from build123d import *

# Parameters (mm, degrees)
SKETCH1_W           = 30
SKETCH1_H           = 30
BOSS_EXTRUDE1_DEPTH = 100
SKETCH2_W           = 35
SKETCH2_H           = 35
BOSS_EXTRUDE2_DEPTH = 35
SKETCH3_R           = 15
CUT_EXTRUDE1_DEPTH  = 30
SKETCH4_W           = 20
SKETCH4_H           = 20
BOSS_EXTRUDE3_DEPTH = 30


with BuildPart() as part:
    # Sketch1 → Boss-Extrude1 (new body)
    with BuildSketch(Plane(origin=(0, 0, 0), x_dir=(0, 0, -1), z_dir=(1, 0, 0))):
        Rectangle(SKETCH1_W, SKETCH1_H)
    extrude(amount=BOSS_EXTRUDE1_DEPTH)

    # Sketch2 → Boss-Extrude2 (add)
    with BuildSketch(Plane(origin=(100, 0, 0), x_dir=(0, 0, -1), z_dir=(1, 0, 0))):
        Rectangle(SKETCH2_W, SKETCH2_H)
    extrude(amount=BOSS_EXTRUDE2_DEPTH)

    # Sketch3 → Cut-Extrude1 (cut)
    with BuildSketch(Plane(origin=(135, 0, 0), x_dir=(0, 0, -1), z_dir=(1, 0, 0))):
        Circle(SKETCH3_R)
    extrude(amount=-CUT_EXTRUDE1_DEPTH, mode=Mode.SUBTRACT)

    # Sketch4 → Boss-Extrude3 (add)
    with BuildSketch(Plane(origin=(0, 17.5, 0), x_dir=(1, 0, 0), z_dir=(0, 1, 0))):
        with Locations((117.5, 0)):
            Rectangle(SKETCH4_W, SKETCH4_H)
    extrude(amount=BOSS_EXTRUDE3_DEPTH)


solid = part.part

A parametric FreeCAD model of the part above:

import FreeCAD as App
import Part
import Sketcher

V = App.Vector
Q = App.Units.Quantity

doc = App.newDocument("Part")
body = doc.addObject("PartDesign::Body", "Body")

# Sketch on YZ plane
sketch1 = body.newObject("Sketcher::SketchObject", "Sketch")
sketch1.AttachmentSupport = (doc.getObject("YZ_Plane"), [""])
sketch1.MapMode = "FlatFace"
sketch1.addGeometry([
    Part.LineSegment(V(15, 15, 0), V(-15, 15, 0)),
    Part.LineSegment(V(-15, 15, 0), V(-15, -15, 0)),
    Part.LineSegment(V(-15, -15, 0), V(15, -15, 0)),
    Part.LineSegment(V(15, -15, 0), V(15, 15, 0)),
], False)
sketch1.addConstraint([
    Sketcher.Constraint("Coincident", 0, 2, 1, 1),
    Sketcher.Constraint("Coincident", 1, 2, 2, 1),
    Sketcher.Constraint("Coincident", 2, 2, 3, 1),
    Sketcher.Constraint("Coincident", 3, 2, 0, 1),
    Sketcher.Constraint("Horizontal", 0),
    Sketcher.Constraint("Vertical", 1),
    Sketcher.Constraint("Horizontal", 2),
    Sketcher.Constraint("Vertical", 3),
    Sketcher.Constraint("Symmetric", 0, 2, 2, 2, -1, 1),
    Sketcher.Constraint("Equal", 2, 1),
    Sketcher.Constraint("DistanceX", 0, 2, 0, 1, Q("30 mm")),
])
pad1 = body.newObject("PartDesign::Pad", "Pad")
pad1.Profile = sketch1
pad1.Length = 100

# Sketch on YZ plane
sketch2 = body.newObject("Sketcher::SketchObject", "Sketch001")
sketch2.AttachmentSupport = (doc.getObject("YZ_Plane"), [""])
sketch2.MapMode = "FlatFace"
sketch2.AttachmentOffset = App.Placement(V(0, 0, 100), App.Rotation())
sketch2.addGeometry([
    Part.LineSegment(V(17.5, 17.5, 0), V(-17.5, 17.5, 0)),
    Part.LineSegment(V(-17.5, 17.5, 0), V(-17.5, -17.5, 0)),
    Part.LineSegment(V(-17.5, -17.5, 0), V(17.5, -17.5, 0)),
    Part.LineSegment(V(17.5, -17.5, 0), V(17.5, 17.5, 0)),
], False)
sketch2.addConstraint([
    Sketcher.Constraint("Coincident", 0, 2, 1, 1),
    Sketcher.Constraint("Coincident", 1, 2, 2, 1),
    Sketcher.Constraint("Coincident", 2, 2, 3, 1),
    Sketcher.Constraint("Coincident", 3, 2, 0, 1),
    Sketcher.Constraint("Horizontal", 0),
    Sketcher.Constraint("Vertical", 1),
    Sketcher.Constraint("Horizontal", 2),
    Sketcher.Constraint("Vertical", 3),
    Sketcher.Constraint("Symmetric", 0, 2, 2, 2, -1, 1),
    Sketcher.Constraint("Equal", 2, 1),
    Sketcher.Constraint("DistanceX", 0, 2, 0, 1, Q("35 mm")),
])
pad2 = body.newObject("PartDesign::Pad", "Pad001")
pad2.Profile = sketch2
pad2.Length = 35

# Sketch on YZ plane
sketch3 = body.newObject("Sketcher::SketchObject", "Sketch002")
sketch3.AttachmentSupport = (doc.getObject("YZ_Plane"), [""])
sketch3.MapMode = "FlatFace"
sketch3.AttachmentOffset = App.Placement(V(0, 0, 135), App.Rotation())
sketch3.addGeometry(Part.Circle(V(0, 0, 0), V(0, 0, 1), 15), False)
sketch3.addConstraint([
    Sketcher.Constraint("Coincident", 0, 3, -1, 1),
    Sketcher.Constraint("Diameter", 0, Q("30 mm")),
])
pocket1 = body.newObject("PartDesign::Pocket", "Pocket")
pocket1.Profile = sketch3
pocket1.Length = 30

# Sketch on XZ plane
sketch4 = body.newObject("Sketcher::SketchObject", "Sketch003")
sketch4.AttachmentSupport = (doc.getObject("XZ_Plane"), [""])
sketch4.MapMode = "FlatFace"
sketch4.AttachmentOffset = App.Placement(V(0, 0, -17.5), App.Rotation())
sketch4.addGeometry([
    Part.LineSegment(V(107.5, -10, 0), V(107.5, 10, 0)),
    Part.LineSegment(V(107.5, 10, 0), V(127.5, 10, 0)),
    Part.LineSegment(V(127.5, 10, 0), V(127.5, -10, 0)),
    Part.LineSegment(V(127.5, -10, 0), V(107.5, -10, 0)),
], False)
sketch4.addConstraint([
    Sketcher.Constraint("Coincident", 0, 2, 1, 1),
    Sketcher.Constraint("Coincident", 1, 2, 2, 1),
    Sketcher.Constraint("Coincident", 2, 2, 3, 1),
    Sketcher.Constraint("Coincident", 3, 2, 0, 1),
    Sketcher.Constraint("Vertical", 0),
    Sketcher.Constraint("Horizontal", 1),
    Sketcher.Constraint("Vertical", 2),
    Sketcher.Constraint("Horizontal", 3),
    Sketcher.Constraint("Equal", 3, 0),
    Sketcher.Constraint("DistanceX", 1, 1, 1, 2, Q("20 mm")),
    Sketcher.Constraint("DistanceY", -1, 1, 0, 2, Q("10 mm")),
    Sketcher.Constraint("DistanceX", -1, 1, 0, 2, Q("107.5 mm")),
])
pad3 = body.newObject("PartDesign::Pad", "Pad002")
pad3.Profile = sketch4
pad3.Length = 30
pad3.Reversed = True

doc.recompute()
